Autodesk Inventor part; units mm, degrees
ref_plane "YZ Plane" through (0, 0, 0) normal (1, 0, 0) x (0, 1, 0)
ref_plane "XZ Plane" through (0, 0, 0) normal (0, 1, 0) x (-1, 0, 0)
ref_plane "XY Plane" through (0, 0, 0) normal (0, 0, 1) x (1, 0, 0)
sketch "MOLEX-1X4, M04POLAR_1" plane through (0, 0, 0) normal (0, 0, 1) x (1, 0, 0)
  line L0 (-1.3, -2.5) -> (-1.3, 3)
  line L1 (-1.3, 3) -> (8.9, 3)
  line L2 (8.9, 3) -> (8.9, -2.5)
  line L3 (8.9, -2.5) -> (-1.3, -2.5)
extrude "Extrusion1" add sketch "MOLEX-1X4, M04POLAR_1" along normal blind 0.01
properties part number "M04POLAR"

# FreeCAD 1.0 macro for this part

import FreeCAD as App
import Part
import Sketcher
from FreeCAD import Vector
Q = App.Units.Quantity


def add_polygon(sketch, points):
    """Adds a closed chain of lines whose ends are joined by coincident constraints."""
    first, n = sketch.GeometryCount, len(points)
    for a, b in zip(points, points[1:] + points[:1]):
        sketch.addGeometry(Part.LineSegment(App.Vector(*a, 0), App.Vector(*b, 0)), False)
    for i in range(n):
        sketch.addConstraint(Sketcher.Constraint("Coincident", first + i, 2, first + (i + 1) % n, 1))

doc = App.newDocument("Part")
body = doc.addObject("PartDesign::Body", "Body")

# Sketch on XY plane
sketch1 = body.newObject("Sketcher::SketchObject", "Sketch")
sketch1.AttachmentSupport = (doc.getObject("XY_Plane"), [""])
sketch1.MapMode = "FlatFace"
add_polygon(sketch1, [(-1, 3), (-1, -2), (9, -2), (9, 3)])  # lines 0-3
sketch1.addConstraint([
    Sketcher.Constraint("Vertical", 0),
    Sketcher.Constraint("Horizontal", 1),
    Sketcher.Constraint("Vertical", 2),
    Sketcher.Constraint("Horizontal", 3),
    Sketcher.Constraint("DistanceX", 1, 1, 1, 2, Q("10.2 mm")),
    Sketcher.Constraint("DistanceY", 0, 2, 0, 1, Q("5.5 mm")),
    Sketcher.Constraint("DistanceY", -1, 1, 2, 2, Q("3 mm")),
    Sketcher.Constraint("DistanceX", 0, 2, -1, 1, Q("1.3 mm")),
])
pad1 = body.newObject("PartDesign::Pad", "Pad")
pad1.Profile = sketch1
pad1.Length = 0.01

doc.recompute()
